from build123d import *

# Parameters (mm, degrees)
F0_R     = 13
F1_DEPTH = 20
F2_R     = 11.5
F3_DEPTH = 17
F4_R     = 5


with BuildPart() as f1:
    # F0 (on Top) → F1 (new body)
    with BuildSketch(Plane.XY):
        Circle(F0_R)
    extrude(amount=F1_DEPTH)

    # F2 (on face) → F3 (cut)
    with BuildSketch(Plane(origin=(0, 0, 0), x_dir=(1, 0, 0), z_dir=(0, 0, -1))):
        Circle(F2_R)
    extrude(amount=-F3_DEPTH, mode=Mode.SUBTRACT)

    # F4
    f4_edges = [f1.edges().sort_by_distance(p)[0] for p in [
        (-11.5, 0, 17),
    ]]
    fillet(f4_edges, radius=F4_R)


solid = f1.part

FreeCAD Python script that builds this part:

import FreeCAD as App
import Part
import Sketcher


def edges_at(feature, points):
    """Names of the edges that pass closest to the given points."""
    edges = feature.Shape.Edges
    near = lambda p: min(range(len(edges)), key=lambda i: edges[i].distToShape(Part.Vertex(*p))[0])
    return sorted({f"Edge{near(p) + 1}" for p in points})

doc = App.newDocument("Part")
body = doc.addObject("PartDesign::Body", "Body")

sketch1 = body.newObject("Sketcher::SketchObject", "Sketch")
sketch1.AttachmentSupport = (doc.getObject("XY_Plane"), [""])
sketch1.MapMode = "FlatFace"
sketch1.addGeometry(Part.Circle(App.Vector(0, 0, 0), App.Vector(0, 0, 1), 13), False)
sketch1.addConstraint([
    Sketcher.Constraint("Coincident", 0, 3, -1, 1),
    Sketcher.Constraint("Diameter", 0, 26.0),
])
pad1 = body.newObject("PartDesign::Pad", "Pad")
pad1.Profile = sketch1
pad1.Length = 20

sketch2 = body.newObject("Sketcher::SketchObject", "Sketch001")
sketch2.AttachmentSupport = (doc.getObject("XY_Plane"), [""])
sketch2.MapMode = "FlatFace"
sketch2.addGeometry(Part.Circle(App.Vector(0, 0, 0), App.Vector(0, 0, 1), 12), False)
sketch2.addConstraint([
    Sketcher.Constraint("Coincident", 0, 3, -1, 1),
    Sketcher.Constraint("Diameter", 0, 23.0),
])
pocket1 = body.newObject("PartDesign::Pocket", "Pocket")
pocket1.Profile = sketch2
pocket1.Length = 17
pocket1.Reversed = True
doc.recompute()

fillet = body.newObject("PartDesign::Fillet", "Fillet")
fillet.Base = (pocket1, edges_at(pocket1, [(-11.5, 0, 17)]))
fillet.Radius = 5

doc.recompute()
